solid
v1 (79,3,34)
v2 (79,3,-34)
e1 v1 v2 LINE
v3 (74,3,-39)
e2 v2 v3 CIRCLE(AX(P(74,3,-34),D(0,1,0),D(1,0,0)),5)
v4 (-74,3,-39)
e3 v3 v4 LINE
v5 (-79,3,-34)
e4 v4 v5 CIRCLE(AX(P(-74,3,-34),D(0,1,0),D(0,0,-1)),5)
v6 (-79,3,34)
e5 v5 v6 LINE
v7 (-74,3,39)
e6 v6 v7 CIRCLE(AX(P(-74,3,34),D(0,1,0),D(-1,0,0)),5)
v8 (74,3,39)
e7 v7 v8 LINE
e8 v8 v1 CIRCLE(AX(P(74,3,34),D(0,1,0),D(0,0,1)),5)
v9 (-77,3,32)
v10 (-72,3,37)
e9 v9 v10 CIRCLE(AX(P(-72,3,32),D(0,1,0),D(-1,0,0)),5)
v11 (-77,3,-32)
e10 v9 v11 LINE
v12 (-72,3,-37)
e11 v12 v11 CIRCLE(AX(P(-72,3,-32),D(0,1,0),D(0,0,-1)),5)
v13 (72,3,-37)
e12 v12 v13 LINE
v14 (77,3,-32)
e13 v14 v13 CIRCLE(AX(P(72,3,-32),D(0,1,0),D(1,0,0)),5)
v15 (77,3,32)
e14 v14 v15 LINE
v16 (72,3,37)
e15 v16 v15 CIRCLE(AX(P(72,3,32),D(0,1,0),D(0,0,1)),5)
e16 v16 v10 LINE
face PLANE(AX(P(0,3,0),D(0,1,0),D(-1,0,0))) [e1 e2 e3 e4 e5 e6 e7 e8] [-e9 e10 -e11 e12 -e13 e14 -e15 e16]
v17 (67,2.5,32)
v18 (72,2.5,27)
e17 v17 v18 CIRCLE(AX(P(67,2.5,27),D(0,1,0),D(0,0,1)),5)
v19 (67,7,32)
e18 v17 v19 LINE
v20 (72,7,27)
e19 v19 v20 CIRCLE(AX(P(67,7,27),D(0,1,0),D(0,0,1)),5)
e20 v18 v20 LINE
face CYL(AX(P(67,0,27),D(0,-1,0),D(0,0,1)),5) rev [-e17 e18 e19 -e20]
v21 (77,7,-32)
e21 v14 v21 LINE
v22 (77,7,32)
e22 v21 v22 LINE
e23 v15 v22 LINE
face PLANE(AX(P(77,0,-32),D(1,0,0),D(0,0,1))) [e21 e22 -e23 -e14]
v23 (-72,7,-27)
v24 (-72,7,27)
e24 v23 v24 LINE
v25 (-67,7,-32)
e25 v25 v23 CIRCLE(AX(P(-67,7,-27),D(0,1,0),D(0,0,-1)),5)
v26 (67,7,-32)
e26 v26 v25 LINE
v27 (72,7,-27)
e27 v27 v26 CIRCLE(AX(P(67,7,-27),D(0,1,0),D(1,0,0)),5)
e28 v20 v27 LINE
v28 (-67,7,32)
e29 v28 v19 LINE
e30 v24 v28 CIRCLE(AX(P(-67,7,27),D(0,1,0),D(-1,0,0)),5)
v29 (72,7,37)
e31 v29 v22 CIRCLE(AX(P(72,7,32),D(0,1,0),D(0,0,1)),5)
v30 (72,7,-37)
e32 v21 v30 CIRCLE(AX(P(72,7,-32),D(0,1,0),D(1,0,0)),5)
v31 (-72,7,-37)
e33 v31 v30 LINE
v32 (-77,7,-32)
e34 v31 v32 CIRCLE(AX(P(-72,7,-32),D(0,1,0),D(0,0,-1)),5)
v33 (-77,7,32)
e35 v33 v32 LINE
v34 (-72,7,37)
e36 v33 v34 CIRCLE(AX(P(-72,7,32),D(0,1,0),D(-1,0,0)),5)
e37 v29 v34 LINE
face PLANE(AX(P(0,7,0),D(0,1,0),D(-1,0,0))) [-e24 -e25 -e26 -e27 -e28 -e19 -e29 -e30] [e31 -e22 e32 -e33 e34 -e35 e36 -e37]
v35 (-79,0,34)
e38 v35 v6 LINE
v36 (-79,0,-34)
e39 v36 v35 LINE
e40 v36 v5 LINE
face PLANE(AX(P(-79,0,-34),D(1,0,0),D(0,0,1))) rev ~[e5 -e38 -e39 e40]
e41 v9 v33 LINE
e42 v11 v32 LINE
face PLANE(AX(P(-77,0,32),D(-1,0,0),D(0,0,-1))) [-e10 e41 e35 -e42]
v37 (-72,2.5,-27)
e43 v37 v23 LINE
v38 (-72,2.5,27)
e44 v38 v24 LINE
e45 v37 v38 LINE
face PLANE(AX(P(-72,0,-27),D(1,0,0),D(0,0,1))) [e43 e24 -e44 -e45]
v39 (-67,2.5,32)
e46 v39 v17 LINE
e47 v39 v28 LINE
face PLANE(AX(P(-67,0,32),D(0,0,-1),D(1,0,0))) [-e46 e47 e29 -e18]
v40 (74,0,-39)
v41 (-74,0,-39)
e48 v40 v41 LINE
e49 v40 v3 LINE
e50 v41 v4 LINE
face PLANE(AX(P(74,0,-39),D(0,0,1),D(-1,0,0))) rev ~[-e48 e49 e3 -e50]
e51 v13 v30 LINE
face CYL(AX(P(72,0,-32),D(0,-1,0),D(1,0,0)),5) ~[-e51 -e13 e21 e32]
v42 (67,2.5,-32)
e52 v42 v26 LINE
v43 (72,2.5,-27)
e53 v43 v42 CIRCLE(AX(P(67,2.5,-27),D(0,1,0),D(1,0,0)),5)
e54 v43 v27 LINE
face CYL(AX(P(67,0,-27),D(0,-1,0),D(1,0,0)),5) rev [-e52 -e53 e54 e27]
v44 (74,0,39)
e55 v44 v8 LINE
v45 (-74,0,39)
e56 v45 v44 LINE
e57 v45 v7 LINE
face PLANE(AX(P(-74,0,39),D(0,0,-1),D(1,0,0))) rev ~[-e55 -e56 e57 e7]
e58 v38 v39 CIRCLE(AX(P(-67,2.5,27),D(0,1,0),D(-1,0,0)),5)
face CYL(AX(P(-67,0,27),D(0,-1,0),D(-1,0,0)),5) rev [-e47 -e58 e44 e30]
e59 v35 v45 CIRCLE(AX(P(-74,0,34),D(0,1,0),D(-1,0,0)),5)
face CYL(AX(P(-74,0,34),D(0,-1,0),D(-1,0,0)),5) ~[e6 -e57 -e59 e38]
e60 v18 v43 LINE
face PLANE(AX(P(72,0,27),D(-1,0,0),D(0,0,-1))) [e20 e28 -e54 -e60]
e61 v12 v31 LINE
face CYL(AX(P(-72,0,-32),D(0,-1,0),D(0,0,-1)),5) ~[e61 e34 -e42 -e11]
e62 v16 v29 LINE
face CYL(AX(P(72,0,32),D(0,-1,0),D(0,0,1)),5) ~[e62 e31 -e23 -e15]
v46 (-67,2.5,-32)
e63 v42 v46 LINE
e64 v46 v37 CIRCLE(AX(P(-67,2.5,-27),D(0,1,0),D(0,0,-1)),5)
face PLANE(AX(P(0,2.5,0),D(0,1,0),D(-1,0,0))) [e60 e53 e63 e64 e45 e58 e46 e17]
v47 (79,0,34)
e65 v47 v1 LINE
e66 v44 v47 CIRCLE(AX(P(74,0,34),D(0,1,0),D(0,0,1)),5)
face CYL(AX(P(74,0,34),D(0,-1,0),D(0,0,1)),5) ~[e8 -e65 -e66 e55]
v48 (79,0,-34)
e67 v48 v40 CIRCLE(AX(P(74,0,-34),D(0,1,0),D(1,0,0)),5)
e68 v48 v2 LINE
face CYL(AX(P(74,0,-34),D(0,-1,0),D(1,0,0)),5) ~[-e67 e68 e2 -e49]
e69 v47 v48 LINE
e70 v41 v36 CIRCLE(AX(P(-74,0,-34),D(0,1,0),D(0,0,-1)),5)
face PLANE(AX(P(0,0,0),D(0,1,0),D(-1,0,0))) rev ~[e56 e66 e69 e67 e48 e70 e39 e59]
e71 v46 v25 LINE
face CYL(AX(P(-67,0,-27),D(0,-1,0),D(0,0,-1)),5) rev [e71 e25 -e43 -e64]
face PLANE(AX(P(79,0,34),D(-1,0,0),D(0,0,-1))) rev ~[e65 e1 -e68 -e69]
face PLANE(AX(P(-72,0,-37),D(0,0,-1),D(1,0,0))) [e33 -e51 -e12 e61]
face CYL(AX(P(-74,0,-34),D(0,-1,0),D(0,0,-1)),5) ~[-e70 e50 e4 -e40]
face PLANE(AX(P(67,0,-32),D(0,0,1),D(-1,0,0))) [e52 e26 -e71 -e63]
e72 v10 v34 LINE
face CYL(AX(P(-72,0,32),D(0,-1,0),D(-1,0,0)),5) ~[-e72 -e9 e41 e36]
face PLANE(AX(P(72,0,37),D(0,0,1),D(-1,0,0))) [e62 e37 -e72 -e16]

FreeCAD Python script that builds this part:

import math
import FreeCAD as App
import Part
import Sketcher

doc = App.newDocument("Part")
params = doc.addObject("Spreadsheet::Sheet", "Params")
for row, (alias, value) in enumerate([
    ("sketch1_radius", "5 mm"),
    ("sketch1_width", "144 mm"),
    ("sketch1_height", "64 mm"),
    ("pad1_length", "7 mm"),
    ("sketch2_radius", "5 mm"),
    ("sketch2_height", "68 mm"),
    ("sketch2_width", "148 mm"),
    ("pad2_length", "3 mm"),
    ("sketch3_radius", "5 mm"),
    ("sketch3_width", "134 mm"),
    ("sketch3_height", "54 mm"),
    ("pad3_length", "2.5 mm"),
], start=1):
    params.set(f"A{row}", alias)
    params.set(f"B{row}", "=" + value)
    params.setAlias(f"B{row}", alias)

body = doc.addObject("PartDesign::Body", "Body")

# Sketch on XZ plane
sketch1 = body.newObject("Sketcher::SketchObject", "Sketch")
sketch1.AttachmentSupport = (doc.getObject("XZ_Plane"), [""])
sketch1.MapMode = "FlatFace"
sketch1.addGeometry([
    Part.LineSegment(App.Vector(-72, 37, 0), App.Vector(72, 37, 0)),  # 0
    Part.ArcOfCircle(Part.Circle(App.Vector(72, 32, 0), App.Vector(0, 0, 1), 5), math.radians(0), math.radians(90)),  # 1
    Part.LineSegment(App.Vector(77, 32, 0), App.Vector(77, -32, 0)),  # 2
    Part.ArcOfCircle(Part.Circle(App.Vector(72, -32, 0), App.Vector(0, 0, 1), 5), math.radians(-90), math.radians(0)),  # 3
    Part.LineSegment(App.Vector(72, -37, 0), App.Vector(-72, -37, 0)),  # 4
    Part.ArcOfCircle(Part.Circle(App.Vector(-72, -32, 0), App.Vector(0, 0, 1), 5), math.radians(180), math.radians(270)),  # 5
    Part.LineSegment(App.Vector(-77, -32, 0), App.Vector(-77, 32, 0)),  # 6
    Part.ArcOfCircle(Part.Circle(App.Vector(-72, 32, 0), App.Vector(0, 0, 1), 5), math.radians(90), math.radians(180)),  # 7
    Part.LineSegment(App.Vector(67, 32, 0), App.Vector(-67, 32, 0)),  # 8
    Part.ArcOfCircle(Part.Circle(App.Vector(-67, 27, 0), App.Vector(0, 0, 1), 5), math.radians(90), math.radians(180)),  # 9
    Part.LineSegment(App.Vector(-72, 27, 0), App.Vector(-72, -27, 0)),  # 10
    Part.ArcOfCircle(Part.Circle(App.Vector(-67, -27, 0), App.Vector(0, 0, 1), 5), math.radians(180), math.radians(270)),  # 11
    Part.LineSegment(App.Vector(-67, -32, 0), App.Vector(67, -32, 0)),  # 12
    Part.ArcOfCircle(Part.Circle(App.Vector(67, -27, 0), App.Vector(0, 0, 1), 5), math.radians(-90), math.radians(0)),  # 13
    Part.LineSegment(App.Vector(72, -27, 0), App.Vector(72, 27, 0)),  # 14
    Part.ArcOfCircle(Part.Circle(App.Vector(67, 27, 0), App.Vector(0, 0, 1), 5), math.radians(0), math.radians(90)),  # 15
], False)
sketch1.addConstraint([
    Sketcher.Constraint("Tangent", 0, 2, 1, 2),
    Sketcher.Constraint("Tangent", 1, 1, 2, 1),
    Sketcher.Constraint("Tangent", 2, 2, 3, 2),
    Sketcher.Constraint("Tangent", 3, 1, 4, 1),
    Sketcher.Constraint("Tangent", 4, 2, 5, 2),
    Sketcher.Constraint("Tangent", 5, 1, 6, 1),
    Sketcher.Constraint("Tangent", 6, 2, 7, 2),
    Sketcher.Constraint("Tangent", 7, 1, 0, 1),
    Sketcher.Constraint("Tangent", 8, 2, 9, 1),
    Sketcher.Constraint("Tangent", 9, 2, 10, 1),
    Sketcher.Constraint("Tangent", 10, 2, 11, 1),
    Sketcher.Constraint("Tangent", 11, 2, 12, 1),
    Sketcher.Constraint("Tangent", 12, 2, 13, 1),
    Sketcher.Constraint("Tangent", 13, 2, 14, 1),
    Sketcher.Constraint("Tangent", 14, 2, 15, 1),
    Sketcher.Constraint("Tangent", 15, 2, 8, 1),
    Sketcher.Constraint("Horizontal", 0),
    Sketcher.Constraint("Vertical", 2),
    Sketcher.Constraint("Horizontal", 4),
    Sketcher.Constraint("Vertical", 6),
    Sketcher.Constraint("Horizontal", 8),
    Sketcher.Constraint("Vertical", 10),
    Sketcher.Constraint("Horizontal", 12),
    Sketcher.Constraint("Vertical", 14),
    Sketcher.Constraint("Equal", 1, 3),
    Sketcher.Constraint("Equal", 3, 5),
    Sketcher.Constraint("Equal", 5, 7),
    Sketcher.Constraint("Equal", 7, 9),
    Sketcher.Constraint("Equal", 9, 11),
    Sketcher.Constraint("Equal", 11, 13),
    Sketcher.Constraint("Equal", 13, 15),
    Sketcher.Constraint("Symmetric", 1, 3, 5, 3, -1, 1),
    Sketcher.Constraint("Symmetric", 9, 3, 13, 3, -1, 1),
    Sketcher.Constraint("Horizontal", 6, 2, 8, 2),
    Sketcher.Constraint("Vertical", 7, 1, 9, 2),
    Sketcher.Constraint("Radius", 1, 5.0),
    Sketcher.Constraint("DistanceX", 0, 1, 0, 2, 144.0),
    Sketcher.Constraint("DistanceY", 2, 2, 2, 1, 64.0),
])
sketch1.setExpression("Constraints[35]", "Params.sketch1_radius")
sketch1.setExpression("Constraints[36]", "Params.sketch1_width")
sketch1.setExpression("Constraints[37]", "Params.sketch1_height")
pad1 = body.newObject("PartDesign::Pad", "Pad")
pad1.Profile = sketch1
pad1.setExpression("Length", "Params.pad1_length")
pad1.Reversed = True

# Sketch on XZ plane
sketch2 = body.newObject("Sketcher::SketchObject", "Sketch001")
sketch2.AttachmentSupport = (doc.getObject("XZ_Plane"), [""])
sketch2.MapMode = "FlatFace"
sketch2.addGeometry([
    Part.ArcOfCircle(Part.Circle(App.Vector(-74, 34, 0), App.Vector(0, 0, 1), 5), math.radians(90), math.radians(180)),  # 0
    Part.LineSegment(App.Vector(-74, 39, 0), App.Vector(74, 39, 0)),  # 1
    Part.ArcOfCircle(Part.Circle(App.Vector(74, 34, 0), App.Vector(0, 0, 1), 5), math.radians(0), math.radians(90)),  # 2
    Part.LineSegment(App.Vector(79, 34, 0), App.Vector(79, -34, 0)),  # 3
    Part.ArcOfCircle(Part.Circle(App.Vector(74, -34, 0), App.Vector(0, 0, 1), 5), math.radians(-90), math.radians(0)),  # 4
    Part.LineSegment(App.Vector(74, -39, 0), App.Vector(-74, -39, 0)),  # 5
    Part.ArcOfCircle(Part.Circle(App.Vector(-74, -34, 0), App.Vector(0, 0, 1), 5), math.radians(180), math.radians(270)),  # 6
    Part.LineSegment(App.Vector(-79, -34, 0), App.Vector(-79, 34, 0)),  # 7
    Part.ArcOfCircle(Part.Circle(App.Vector(72, 32, 0), App.Vector(0, 0, 1), 5), math.radians(0), math.radians(90)),  # 8
    Part.LineSegment(App.Vector(72, 37, 0), App.Vector(-72, 37, 0)),  # 9
    Part.ArcOfCircle(Part.Circle(App.Vector(-72, 32, 0), App.Vector(0, 0, 1), 5), math.radians(90), math.radians(180)),  # 10
    Part.LineSegment(App.Vector(-77, 32, 0), App.Vector(-77, -32, 0)),  # 11
    Part.ArcOfCircle(Part.Circle(App.Vector(-72, -32, 0), App.Vector(0, 0, 1), 5), math.radians(180), math.radians(270)),  # 12
    Part.LineSegment(App.Vector(-72, -37, 0), App.Vector(72, -37, 0)),  # 13
    Part.ArcOfCircle(Part.Circle(App.Vector(72, -32, 0), App.Vector(0, 0, 1), 5), math.radians(-90), math.radians(0)),  # 14
    Part.LineSegment(App.Vector(77, -32, 0), App.Vector(77, 32, 0)),  # 15
], False)
sketch2.addConstraint([
    Sketcher.Constraint("Tangent", 0, 1, 1, 1),
    Sketcher.Constraint("Tangent", 1, 2, 2, 2),
    Sketcher.Constraint("Tangent", 2, 1, 3, 1),
    Sketcher.Constraint("Tangent", 3, 2, 4, 2),
    Sketcher.Constraint("Tangent", 4, 1, 5, 1),
    Sketcher.Constraint("Tangent", 5, 2, 6, 2),
    Sketcher.Constraint("Tangent", 6, 1, 7, 1),
    Sketcher.Constraint("Tangent", 7, 2, 0, 2),
    Sketcher.Constraint("Tangent", 8, 2, 9, 1),
    Sketcher.Constraint("Tangent", 9, 2, 10, 1),
    Sketcher.Constraint("Tangent", 10, 2, 11, 1),
    Sketcher.Constraint("Tangent", 11, 2, 12, 1),
    Sketcher.Constraint("Tangent", 12, 2, 13, 1),
    Sketcher.Constraint("Tangent", 13, 2, 14, 1),
    Sketcher.Constraint("Tangent", 14, 2, 15, 1),
    Sketcher.Constraint("Tangent", 15, 2, 8, 1),
    Sketcher.Constraint("Horizontal", 1),
    Sketcher.Constraint("Vertical", 3),
    Sketcher.Constraint("Horizontal", 5),
    Sketcher.Constraint("Vertical", 7),
    Sketcher.Constraint("Horizontal", 9),
    Sketcher.Constraint("Vertical", 11),
    Sketcher.Constraint("Horizontal", 13),
    Sketcher.Constraint("Vertical", 15),
    Sketcher.Constraint("Equal", 0, 2),
    Sketcher.Constraint("Equal", 2, 4),
    Sketcher.Constraint("Equal", 4, 6),
    Sketcher.Constraint("Equal", 6, 8),
    Sketcher.Constraint("Equal", 8, 10),
    Sketcher.Constraint("Equal", 10, 12),
    Sketcher.Constraint("Equal", 12, 14),
    Sketcher.Constraint("Symmetric", 0, 3, 4, 3, -1, 1),
    Sketcher.Constraint("Symmetric", 8, 3, 12, 3, -1, 1),
    Sketcher.Constraint("Radius", 0, 5.0),
    Sketcher.Constraint("DistanceY", 3, 2, 3, 1, 68.0),
    Sketcher.Constraint("DistanceX", 8, 3, 2, 3, 2.0),
    Sketcher.Constraint("DistanceY", 8, 3, 2, 3, 2.0),
    Sketcher.Constraint("DistanceX", 1, 1, 1, 2, 148.0),
])
sketch2.setExpression("Constraints[33]", "Params.sketch2_radius")
sketch2.setExpression("Constraints[34]", "Params.sketch2_height")
sketch2.setExpression("Constraints[37]", "Params.sketch2_width")
pad2 = body.newObject("PartDesign::Pad", "Pad001")
pad2.Profile = sketch2
pad2.setExpression("Length", "Params.pad2_length")
pad2.Reversed = True

# Sketch on XZ plane
sketch3 = body.newObject("Sketcher::SketchObject", "Sketch002")
sketch3.AttachmentSupport = (doc.getObject("XZ_Plane"), [""])
sketch3.MapMode = "FlatFace"
sketch3.addGeometry([
    Part.ArcOfCircle(Part.Circle(App.Vector(-67, 27, 0), App.Vector(0, 0, 1), 5), math.radians(90), math.radians(180)),  # 0
    Part.LineSegment(App.Vector(-67, 32, 0), App.Vector(67, 32, 0)),  # 1
    Part.ArcOfCircle(Part.Circle(App.Vector(67, 27, 0), App.Vector(0, 0, 1), 5), math.radians(0), math.radians(90)),  # 2
    Part.LineSegment(App.Vector(72, 27, 0), App.Vector(72, -27, 0)),  # 3
    Part.ArcOfCircle(Part.Circle(App.Vector(67, -27, 0), App.Vector(0, 0, 1), 5), math.radians(-90), math.radians(0)),  # 4
    Part.LineSegment(App.Vector(67, -32, 0), App.Vector(-67, -32, 0)),  # 5
    Part.ArcOfCircle(Part.Circle(App.Vector(-67, -27, 0), App.Vector(0, 0, 1), 5), math.radians(180), math.radians(270)),  # 6
    Part.LineSegment(App.Vector(-72, -27, 0), App.Vector(-72, 27, 0)),  # 7
], False)
sketch3.addConstraint([
    Sketcher.Constraint("Tangent", 0, 1, 1, 1),
    Sketcher.Constraint("Tangent", 1, 2, 2, 2),
    Sketcher.Constraint("Tangent", 2, 1, 3, 1),
    Sketcher.Constraint("Tangent", 3, 2, 4, 2),
    Sketcher.Constraint("Tangent", 4, 1, 5, 1),
    Sketcher.Constraint("Tangent", 5, 2, 6, 2),
    Sketcher.Constraint("Tangent", 6, 1, 7, 1),
    Sketcher.Constraint("Tangent", 7, 2, 0, 2),
    Sketcher.Constraint("Horizontal", 1),
    Sketcher.Constraint("Vertical", 3),
    Sketcher.Constraint("Horizontal", 5),
    Sketcher.Constraint("Vertical", 7),
    Sketcher.Constraint("Equal", 0, 2),
    Sketcher.Constraint("Equal", 2, 4),
    Sketcher.Constraint("Equal", 4, 6),
    Sketcher.Constraint("Symmetric", 0, 3, 4, 3, -1, 1),
    Sketcher.Constraint("Radius", 0, 5.0),
    Sketcher.Constraint("DistanceX", 1, 1, 1, 2, 134.0),
    Sketcher.Constraint("DistanceY", 3, 2, 3, 1, 54.0),
])
sketch3.setExpression("Constraints[16]", "Params.sketch3_radius")
sketch3.setExpression("Constraints[17]", "Params.sketch3_width")
sketch3.setExpression("Constraints[18]", "Params.sketch3_height")
pad3 = body.newObject("PartDesign::Pad", "Pad002")
pad3.Profile = sketch3
pad3.setExpression("Length", "Params.pad3_length")
pad3.Reversed = True

doc.recompute()
